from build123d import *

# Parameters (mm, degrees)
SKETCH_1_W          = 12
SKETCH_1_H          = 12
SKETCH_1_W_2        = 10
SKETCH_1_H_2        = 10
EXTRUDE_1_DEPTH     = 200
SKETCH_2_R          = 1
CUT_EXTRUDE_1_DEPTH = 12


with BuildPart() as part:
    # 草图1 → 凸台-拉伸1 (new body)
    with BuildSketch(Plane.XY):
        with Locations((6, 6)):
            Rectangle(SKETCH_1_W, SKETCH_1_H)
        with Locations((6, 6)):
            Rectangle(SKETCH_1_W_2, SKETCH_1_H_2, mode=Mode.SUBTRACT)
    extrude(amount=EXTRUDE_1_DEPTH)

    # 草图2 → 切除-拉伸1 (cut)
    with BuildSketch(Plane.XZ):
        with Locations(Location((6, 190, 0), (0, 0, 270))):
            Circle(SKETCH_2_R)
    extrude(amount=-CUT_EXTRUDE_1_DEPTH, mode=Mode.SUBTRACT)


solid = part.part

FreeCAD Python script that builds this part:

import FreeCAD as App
import Part
import Sketcher
from FreeCAD import Vector

doc = App.newDocument("Part")
body = doc.addObject("PartDesign::Body", "Body")

sketch1 = doc.addObject("Sketcher::SketchObject", "Sketch")
body.addObject(sketch1)
sketch1.AttachmentSupport = (doc.XY_Plane, [""])
sketch1.MapMode = "FlatFace"
sketch1.addGeometry(Part.LineSegment(Vector(0, 12, 0), Vector(0, 0, 0)), False)
sketch1.addGeometry(Part.LineSegment(Vector(0, 0, 0), Vector(12, 0, 0)), False)
sketch1.addGeometry(Part.LineSegment(Vector(12, 0, 0), Vector(12, 12, 0)), False)
sketch1.addGeometry(Part.LineSegment(Vector(12, 12, 0), Vector(0, 12, 0)), False)
sketch1.addGeometry(Part.LineSegment(Vector(11, 1, 0), Vector(1, 1, 0)), False)
sketch1.addGeometry(Part.LineSegment(Vector(1, 1, 0), Vector(1, 11, 0)), False)
sketch1.addGeometry(Part.LineSegment(Vector(1, 11, 0), Vector(11, 11, 0)), False)
sketch1.addGeometry(Part.LineSegment(Vector(11, 11, 0), Vector(11, 1, 0)), False)
sketch1.addConstraint(Sketcher.Constraint("Coincident", 0, 2, 1, 1))
sketch1.addConstraint(Sketcher.Constraint("Coincident", 1, 2, 2, 1))
sketch1.addConstraint(Sketcher.Constraint("Coincident", 2, 2, 3, 1))
sketch1.addConstraint(Sketcher.Constraint("Coincident", 3, 2, 0, 1))
sketch1.addConstraint(Sketcher.Constraint("Coincident", 4, 2, 5, 1))
sketch1.addConstraint(Sketcher.Constraint("Coincident", 5, 2, 6, 1))
sketch1.addConstraint(Sketcher.Constraint("Coincident", 6, 2, 7, 1))
sketch1.addConstraint(Sketcher.Constraint("Coincident", 7, 2, 4, 1))
sketch1.addConstraint(Sketcher.Constraint("Vertical", 0))
sketch1.addConstraint(Sketcher.Constraint("Horizontal", 1))
sketch1.addConstraint(Sketcher.Constraint("Vertical", 2))
sketch1.addConstraint(Sketcher.Constraint("Horizontal", 3))
sketch1.addConstraint(Sketcher.Constraint("Horizontal", 4))
sketch1.addConstraint(Sketcher.Constraint("Vertical", 5))
sketch1.addConstraint(Sketcher.Constraint("Horizontal", 6))
sketch1.addConstraint(Sketcher.Constraint("Vertical", 7))
sketch1.addConstraint(Sketcher.Constraint("Coincident", 0, 2, -1, 1))
sketch1.addConstraint(Sketcher.Constraint("Equal", 3, 0))
sketch1.addConstraint(Sketcher.Constraint("Equal", 6, 5))
sketch1.addConstraint(Sketcher.Constraint("DistanceX", 1, 1, 1, 2, 12.0))
sketch1.addConstraint(Sketcher.Constraint("DistanceX", 4, 2, 4, 1, 10.0))
sketch1.addConstraint(Sketcher.Constraint("DistanceX", -1, 1, 4, 2, 1.0))
sketch1.addConstraint(Sketcher.Constraint("DistanceY", -1, 1, 4, 2, 1.0))
pad1 = doc.addObject("PartDesign::Pad", "Pad")
body.addObject(pad1)
pad1.Profile = sketch1
pad1.Length = 200

sketch2 = doc.addObject("Sketcher::SketchObject", "Sketch001")
body.addObject(sketch2)
sketch2.AttachmentSupport = (doc.XZ_Plane, [""])
sketch2.MapMode = "FlatFace"
sketch2.addGeometry(Part.Circle(Vector(6, 190, 0), Vector(0, 0, 1), 1), False)
sketch2.addConstraint(Sketcher.Constraint("Diameter", 0, 2.0))
sketch2.addConstraint(Sketcher.Constraint("DistanceX", -1, 1, 0, 3, 6.0))
sketch2.addConstraint(Sketcher.Constraint("DistanceY", -1, 1, 0, 3, 190.0))
pocket1 = doc.addObject("PartDesign::Pocket", "Pocket")
body.addObject(pocket1)
pocket1.Profile = sketch2
pocket1.Length = 12

doc.recompute()
